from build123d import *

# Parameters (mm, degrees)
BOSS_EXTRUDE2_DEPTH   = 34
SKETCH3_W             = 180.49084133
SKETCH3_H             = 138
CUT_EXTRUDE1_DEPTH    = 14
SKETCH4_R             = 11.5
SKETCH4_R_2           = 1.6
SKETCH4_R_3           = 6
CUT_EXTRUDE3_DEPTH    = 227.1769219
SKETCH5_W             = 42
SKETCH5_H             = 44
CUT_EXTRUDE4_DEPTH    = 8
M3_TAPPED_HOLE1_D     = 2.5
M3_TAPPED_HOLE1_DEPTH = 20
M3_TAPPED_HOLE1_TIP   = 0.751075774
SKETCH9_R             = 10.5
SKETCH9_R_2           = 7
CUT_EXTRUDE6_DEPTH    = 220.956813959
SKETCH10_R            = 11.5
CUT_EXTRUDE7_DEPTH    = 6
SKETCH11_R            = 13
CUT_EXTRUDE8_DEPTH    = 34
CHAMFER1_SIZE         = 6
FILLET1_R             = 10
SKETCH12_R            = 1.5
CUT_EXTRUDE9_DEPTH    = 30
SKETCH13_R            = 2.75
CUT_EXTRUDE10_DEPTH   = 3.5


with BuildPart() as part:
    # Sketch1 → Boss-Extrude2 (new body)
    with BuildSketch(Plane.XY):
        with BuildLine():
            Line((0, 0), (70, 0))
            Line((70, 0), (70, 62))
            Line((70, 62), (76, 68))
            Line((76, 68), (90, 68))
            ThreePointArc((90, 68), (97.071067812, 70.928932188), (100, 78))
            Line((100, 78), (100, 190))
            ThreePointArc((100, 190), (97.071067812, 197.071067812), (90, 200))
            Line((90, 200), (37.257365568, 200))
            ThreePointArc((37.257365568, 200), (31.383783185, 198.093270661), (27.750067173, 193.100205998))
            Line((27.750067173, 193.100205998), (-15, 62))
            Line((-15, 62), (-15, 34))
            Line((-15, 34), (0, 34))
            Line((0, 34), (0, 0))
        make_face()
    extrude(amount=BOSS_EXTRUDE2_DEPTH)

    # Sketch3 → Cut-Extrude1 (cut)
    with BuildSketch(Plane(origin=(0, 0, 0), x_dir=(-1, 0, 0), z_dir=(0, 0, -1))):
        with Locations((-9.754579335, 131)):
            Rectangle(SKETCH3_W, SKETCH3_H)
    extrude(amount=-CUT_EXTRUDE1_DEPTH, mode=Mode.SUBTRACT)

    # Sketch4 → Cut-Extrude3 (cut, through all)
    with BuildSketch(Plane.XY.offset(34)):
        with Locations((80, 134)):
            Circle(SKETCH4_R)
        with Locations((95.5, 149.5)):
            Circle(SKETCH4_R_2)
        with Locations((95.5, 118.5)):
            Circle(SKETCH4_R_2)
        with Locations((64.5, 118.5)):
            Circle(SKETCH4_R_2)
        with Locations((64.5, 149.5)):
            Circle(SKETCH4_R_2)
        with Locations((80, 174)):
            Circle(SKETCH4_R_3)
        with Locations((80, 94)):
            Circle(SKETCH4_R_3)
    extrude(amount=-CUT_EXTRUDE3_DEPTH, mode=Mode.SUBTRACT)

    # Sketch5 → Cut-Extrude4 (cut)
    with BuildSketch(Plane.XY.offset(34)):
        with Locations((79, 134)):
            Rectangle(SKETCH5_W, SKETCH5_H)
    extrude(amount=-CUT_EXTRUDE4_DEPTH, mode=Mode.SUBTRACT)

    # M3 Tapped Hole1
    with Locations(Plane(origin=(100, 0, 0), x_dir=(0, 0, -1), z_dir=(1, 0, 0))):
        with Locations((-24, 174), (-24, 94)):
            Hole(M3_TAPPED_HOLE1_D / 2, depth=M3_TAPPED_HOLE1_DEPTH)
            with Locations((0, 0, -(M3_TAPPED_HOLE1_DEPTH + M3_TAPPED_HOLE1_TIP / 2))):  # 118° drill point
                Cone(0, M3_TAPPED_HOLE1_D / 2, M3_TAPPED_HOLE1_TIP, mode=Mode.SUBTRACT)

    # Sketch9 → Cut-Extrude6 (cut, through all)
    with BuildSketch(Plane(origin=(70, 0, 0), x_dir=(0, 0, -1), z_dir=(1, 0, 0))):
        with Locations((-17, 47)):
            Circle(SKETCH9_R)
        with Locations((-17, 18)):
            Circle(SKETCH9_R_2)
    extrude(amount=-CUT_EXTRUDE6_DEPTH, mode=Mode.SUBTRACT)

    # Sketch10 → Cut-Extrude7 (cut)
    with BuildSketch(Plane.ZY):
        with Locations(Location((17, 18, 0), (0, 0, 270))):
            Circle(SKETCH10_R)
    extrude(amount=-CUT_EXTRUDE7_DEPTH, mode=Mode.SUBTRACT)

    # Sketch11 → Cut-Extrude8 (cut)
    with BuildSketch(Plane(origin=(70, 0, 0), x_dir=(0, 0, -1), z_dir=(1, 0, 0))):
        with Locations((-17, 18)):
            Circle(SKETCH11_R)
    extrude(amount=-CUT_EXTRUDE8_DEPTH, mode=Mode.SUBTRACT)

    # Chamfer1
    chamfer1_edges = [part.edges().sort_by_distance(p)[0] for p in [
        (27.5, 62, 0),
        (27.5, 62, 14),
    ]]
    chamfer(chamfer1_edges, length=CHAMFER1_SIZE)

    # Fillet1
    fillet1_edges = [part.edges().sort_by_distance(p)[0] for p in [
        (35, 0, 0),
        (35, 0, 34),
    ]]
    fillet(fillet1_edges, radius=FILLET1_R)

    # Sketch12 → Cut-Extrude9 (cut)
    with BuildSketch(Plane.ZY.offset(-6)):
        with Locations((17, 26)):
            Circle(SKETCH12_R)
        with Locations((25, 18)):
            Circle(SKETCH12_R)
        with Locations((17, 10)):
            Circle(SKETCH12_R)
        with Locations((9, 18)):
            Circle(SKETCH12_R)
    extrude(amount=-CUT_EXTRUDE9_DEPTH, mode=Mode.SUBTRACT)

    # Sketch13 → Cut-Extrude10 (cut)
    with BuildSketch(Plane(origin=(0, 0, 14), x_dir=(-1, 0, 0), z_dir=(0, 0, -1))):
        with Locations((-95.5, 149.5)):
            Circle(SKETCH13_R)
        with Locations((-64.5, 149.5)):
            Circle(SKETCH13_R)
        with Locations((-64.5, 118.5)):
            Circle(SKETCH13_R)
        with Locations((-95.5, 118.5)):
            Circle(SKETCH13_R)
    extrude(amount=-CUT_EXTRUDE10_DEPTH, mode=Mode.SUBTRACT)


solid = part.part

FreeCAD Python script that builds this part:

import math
import FreeCAD as App
import Part
import Sketcher
Q = App.Units.Quantity


def edges_at(feature, points):
    """Names of the edges that pass closest to the given points."""
    edges = feature.Shape.Edges
    near = lambda p: min(range(len(edges)), key=lambda i: edges[i].distToShape(Part.Vertex(*p))[0])
    return sorted({f"Edge{near(p) + 1}" for p in points})

doc = App.newDocument("Part")
body = doc.addObject("PartDesign::Body", "Body")

# Sketch on XY plane
sketch1 = body.newObject("Sketcher::SketchObject", "Sketch")
sketch1.AttachmentSupport = (doc.getObject("XY_Plane"), [""])
sketch1.MapMode = "FlatFace"
sketch1.addGeometry([
    Part.LineSegment(App.Vector(0, 0, 0), App.Vector(70, 0, 0)),  # 0
    Part.LineSegment(App.Vector(70, 0, 0), App.Vector(70, 62, 0)),  # 1
    Part.LineSegment(App.Vector(70, 62, 0), App.Vector(76, 68, 0)),  # 2
    Part.LineSegment(App.Vector(76, 68, 0), App.Vector(90, 68, 0)),  # 3
    Part.ArcOfCircle(Part.Circle(App.Vector(90, 78, 0), App.Vector(0, 0, 1), 10), math.radians(-90), math.radians(0)),  # 4
    Part.LineSegment(App.Vector(100, 78, 0), App.Vector(100, 190, 0)),  # 5
    Part.ArcOfCircle(Part.Circle(App.Vector(90, 190, 0), App.Vector(0, 0, 1), 10), math.radians(0), math.radians(90)),  # 6
    Part.LineSegment(App.Vector(90, 200, 0), App.Vector(37, 200, 0)),  # 7
    Part.ArcOfCircle(Part.Circle(App.Vector(37, 190, 0), App.Vector(0, 0, 1), 10), math.radians(90), math.radians(162)),  # 8
    Part.LineSegment(App.Vector(28, 193, 0), App.Vector(-15, 62, 0)),  # 9
    Part.LineSegment(App.Vector(-15, 62, 0), App.Vector(-15, 34, 0)),  # 10
    Part.LineSegment(App.Vector(-15, 34, 0), App.Vector(0, 34, 0)),  # 11
    Part.LineSegment(App.Vector(0, 34, 0), App.Vector(0, 0, 0)),  # 12
], False)
sketch1.addConstraint([
    Sketcher.Constraint("Coincident", 0, 2, 1, 1),
    Sketcher.Constraint("Coincident", 1, 2, 2, 1),
    Sketcher.Constraint("Coincident", 2, 2, 3, 1),
    Sketcher.Constraint("Tangent", 3, 2, 4, 1),
    Sketcher.Constraint("Tangent", 4, 2, 5, 1),
    Sketcher.Constraint("Tangent", 5, 2, 6, 1),
    Sketcher.Constraint("Tangent", 6, 2, 7, 1),
    Sketcher.Constraint("Tangent", 7, 2, 8, 1),
    Sketcher.Constraint("Tangent", 8, 2, 9, 1),
    Sketcher.Constraint("Coincident", 9, 2, 10, 1),
    Sketcher.Constraint("Coincident", 10, 2, 11, 1),
    Sketcher.Constraint("Coincident", 11, 2, 12, 1),
    Sketcher.Constraint("Coincident", 12, 2, 0, 1),
    Sketcher.Constraint("Horizontal", 0),
    Sketcher.Constraint("Vertical", 1),
    Sketcher.Constraint("Horizontal", 3),
    Sketcher.Constraint("Vertical", 5),
    Sketcher.Constraint("Horizontal", 7),
    Sketcher.Constraint("Vertical", 10),
    Sketcher.Constraint("Horizontal", 11),
    Sketcher.Constraint("Vertical", 12),
    Sketcher.Constraint("Coincident", 12, 2, -1, 1),
    Sketcher.Constraint("Equal", 4, 6),
    Sketcher.Constraint("Equal", 6, 8),
    Sketcher.Constraint("Horizontal", 1, 2, 9, 2),
    Sketcher.Constraint("Radius", 4, 10.0),
    Sketcher.Constraint("DistanceX", 0, 1, 0, 2, 70.0),
    Sketcher.Constraint("DistanceX", 3, 1, 3, 2, 14.0),
    Sketcher.Constraint("DistanceX", 11, 1, 11, 2, 15.0),
    Sketcher.Constraint("DistanceY", 1, 1, 1, 2, 62.0),
    Sketcher.Constraint("DistanceY", 5, 1, 5, 2, 112.0),
    Sketcher.Constraint("DistanceY", 10, 2, 10, 1, 28.0),
    Sketcher.Constraint("Angle", 2, Q("45 deg")),
    Sketcher.Constraint("DistanceX", -1, 1, 4, 3, 90.0),
    Sketcher.Constraint("DistanceX", 8, 2, 8, 3, 9.507298),
])
pad1 = body.newObject("PartDesign::Pad", "Pad")
pad1.Profile = sketch1
pad1.Length = 34

# Sketch on XY plane
sketch2 = body.newObject("Sketcher::SketchObject", "Sketch001")
sketch2.AttachmentSupport = (doc.getObject("XY_Plane"), [""])
sketch2.MapMode = "FlatFace"
sketch2.addGeometry([
    Part.LineSegment(App.Vector(100, 200, 0), App.Vector(100, 62, 0)),
    Part.LineSegment(App.Vector(100, 62, 0), App.Vector(-80, 62, 0)),
    Part.LineSegment(App.Vector(-80, 62, 0), App.Vector(-80, 200, 0)),
    Part.LineSegment(App.Vector(-80, 200, 0), App.Vector(100, 200, 0)),
], False)
sketch2.addConstraint([
    Sketcher.Constraint("Coincident", 0, 2, 1, 1),
    Sketcher.Constraint("Coincident", 1, 2, 2, 1),
    Sketcher.Constraint("Coincident", 2, 2, 3, 1),
    Sketcher.Constraint("Coincident", 3, 2, 0, 1),
    Sketcher.Constraint("Vertical", 0),
    Sketcher.Constraint("Horizontal", 1),
    Sketcher.Constraint("Vertical", 2),
    Sketcher.Constraint("Horizontal", 3),
    Sketcher.Constraint("DistanceY", 0, 2, 0, 1, 138.0),
    Sketcher.Constraint("DistanceX", -1, 1, 0, 2, 100.0),
    Sketcher.Constraint("DistanceY", -1, 1, 0, 2, 62.0),
    Sketcher.Constraint("DistanceX", 1, 2, 1, 1, 180.490841),
])
pocket1 = body.newObject("PartDesign::Pocket", "Pocket")
pocket1.Profile = sketch2
pocket1.Length = 14
pocket1.Reversed = True

# Sketch on XY plane
sketch3 = body.newObject("Sketcher::SketchObject", "Sketch002")
sketch3.AttachmentSupport = (doc.getObject("XY_Plane"), [""])
sketch3.MapMode = "FlatFace"
sketch3.AttachmentOffset = App.Placement(App.Vector(0, 0, 34), App.Rotation())
sketch3.addGeometry([
    Part.Circle(App.Vector(80, 134, 0), App.Vector(0, 0, 1), 11.5),  # 0
    Part.Circle(App.Vector(95.5, 149.5, 0), App.Vector(0, 0, 1), 1.6),  # 1
    Part.Circle(App.Vector(95.5, 118.5, 0), App.Vector(0, 0, 1), 1.6),  # 2
    Part.Circle(App.Vector(64.5, 118.5, 0), App.Vector(0, 0, 1), 1.6),  # 3
    Part.Circle(App.Vector(64.5, 149.5, 0), App.Vector(0, 0, 1), 1.6),  # 4
    Part.Circle(App.Vector(80, 174, 0), App.Vector(0, 0, 1), 6),  # 5
    Part.Circle(App.Vector(80, 94, 0), App.Vector(0, 0, 1), 6),  # 6
], False)
sketch3.addConstraint([
    Sketcher.Constraint("Equal", 1, 2),
    Sketcher.Constraint("Equal", 2, 3),
    Sketcher.Constraint("Equal", 3, 4),
    Sketcher.Constraint("Equal", 5, 6),
    Sketcher.Constraint("Horizontal", 2, 3, 3, 3),
    Sketcher.Constraint("Horizontal", 1, 3, 4, 3),
    Sketcher.Constraint("Vertical", 1, 3, 2, 3),
    Sketcher.Constraint("Vertical", 3, 3, 4, 3),
    Sketcher.Constraint("Vertical", 0, 3, 5, 3),
    Sketcher.Constraint("Vertical", 5, 3, 6, 3),
    Sketcher.Constraint("Diameter", 0, 23.0),
    Sketcher.Constraint("Diameter", 5, 12.0),
    Sketcher.Constraint("Diameter", 1, 3.2),
    Sketcher.Constraint("DistanceX", -1, 1, 0, 3, 80.0),
    Sketcher.Constraint("DistanceY", -1, 1, 0, 3, 134.0),
    Sketcher.Constraint("DistanceY", -1, 1, 5, 3, 174.0),
    Sketcher.Constraint("DistanceY", -1, 1, 6, 3, 94.0),
    Sketcher.Constraint("DistanceY", 2, 3, 1, 3, 31.0),
    Sketcher.Constraint("DistanceX", 3, 3, 2, 3, 31.0),
    Sketcher.Constraint("DistanceX", -1, 1, 1, 3, 95.5),
    Sketcher.Constraint("DistanceY", -1, 1, 1, 3, 149.5),
])
pocket2 = body.newObject("PartDesign::Pocket", "Pocket001")
pocket2.Profile = sketch3
pocket2.Type = "ThroughAll"

# Sketch on XY plane
sketch4 = body.newObject("Sketcher::SketchObject", "Sketch003")
sketch4.AttachmentSupport = (doc.getObject("XY_Plane"), [""])
sketch4.MapMode = "FlatFace"
sketch4.AttachmentOffset = App.Placement(App.Vector(0, 0, 34), App.Rotation())
sketch4.addGeometry([
    Part.LineSegment(App.Vector(58, 156, 0), App.Vector(58, 112, 0)),
    Part.LineSegment(App.Vector(58, 112, 0), App.Vector(100, 112, 0)),
    Part.LineSegment(App.Vector(100, 112, 0), App.Vector(100, 156, 0)),
    Part.LineSegment(App.Vector(100, 156, 0), App.Vector(58, 156, 0)),
], False)
sketch4.addConstraint([
    Sketcher.Constraint("Coincident", 0, 2, 1, 1),
    Sketcher.Constraint("Coincident", 1, 2, 2, 1),
    Sketcher.Constraint("Coincident", 2, 2, 3, 1),
    Sketcher.Constraint("Coincident", 3, 2, 0, 1),
    Sketcher.Constraint("Vertical", 0),
    Sketcher.Constraint("Horizontal", 1),
    Sketcher.Constraint("Vertical", 2),
    Sketcher.Constraint("Horizontal", 3),
    Sketcher.Constraint("DistanceX", 1, 1, 1, 2, 42.0),
    Sketcher.Constraint("DistanceY", 0, 2, 0, 1, 44.0),
    Sketcher.Constraint("DistanceX", -1, 1, 0, 2, 58.0),
    Sketcher.Constraint("DistanceY", -1, 1, 0, 2, 112.0),
])
pocket3 = body.newObject("PartDesign::Pocket", "Pocket002")
pocket3.Profile = sketch4
pocket3.Length = 8

# Sketch on YZ plane
sketch5 = body.newObject("Sketcher::SketchObject", "Sketch004")
sketch5.AttachmentSupport = (doc.getObject("YZ_Plane"), [""])
sketch5.MapMode = "FlatFace"
sketch5.AttachmentOffset = App.Placement(App.Vector(0, 0, 100), App.Rotation())
sketch5.addGeometry([
    Part.Circle(App.Vector(174, 24, 0), App.Vector(0, 0, 1), 1.2),
    Part.Circle(App.Vector(94, 24, 0), App.Vector(0, 0, 1), 1.2),
], False)
sketch5.addConstraint([
    Sketcher.Constraint("Equal", 0, 1),
    Sketcher.Constraint("Horizontal", 0, 3, 1, 3),
    Sketcher.Constraint("Diameter", 0, 2.5),
    Sketcher.Constraint("DistanceX", -1, 1, 0, 3, 174.0),
    Sketcher.Constraint("DistanceY", -1, 1, 0, 3, 24.0),
    Sketcher.Constraint("DistanceX", -1, 1, 1, 3, 94.0),
])
doc.recompute()
hole = body.newObject("PartDesign::Hole", "Hole")
hole.Profile = sketch5
hole.ThreadType = "None"
hole.Diameter = 2.5
hole.DepthType = "Dimension"
hole.Depth = 20
hole.DrillPoint = "Angled"
hole.DrillPointAngle = 118

# Sketch on YZ plane
sketch6 = body.newObject("Sketcher::SketchObject", "Sketch005")
sketch6.AttachmentSupport = (doc.getObject("YZ_Plane"), [""])
sketch6.MapMode = "FlatFace"
sketch6.AttachmentOffset = App.Placement(App.Vector(0, 0, 70), App.Rotation())
sketch6.addGeometry([
    Part.Circle(App.Vector(47, 17, 0), App.Vector(0, 0, 1), 10),
    Part.Circle(App.Vector(18, 17, 0), App.Vector(0, 0, 1), 7),
], False)
sketch6.addConstraint([
    Sketcher.Constraint("Horizontal", 0, 3, 1, 3),
    Sketcher.Constraint("Diameter", 0, 21.0),
    Sketcher.Constraint("Diameter", 1, 14.0),
    Sketcher.Constraint("DistanceX", -1, 1, 0, 3, 47.0),
    Sketcher.Constraint("DistanceY", -1, 1, 0, 3, 17.0),
    Sketcher.Constraint("DistanceX", -1, 1, 1, 3, 18.0),
])
pocket4 = body.newObject("PartDesign::Pocket", "Pocket003")
pocket4.Profile = sketch6
pocket4.Type = "ThroughAll"

# Sketch on YZ plane
sketch7 = body.newObject("Sketcher::SketchObject", "Sketch006")
sketch7.AttachmentSupport = (doc.getObject("YZ_Plane"), [""])
sketch7.MapMode = "FlatFace"
sketch7.addGeometry(Part.Circle(App.Vector(18, 17, 0), App.Vector(0, 0, 1), 12), False)
sketch7.addConstraint([
    Sketcher.Constraint("Diameter", 0, 23.0),
    Sketcher.Constraint("DistanceX", -1, 1, 0, 3, 18.0),
    Sketcher.Constraint("DistanceY", -1, 1, 0, 3, 17.0),
])
pocket5 = body.newObject("PartDesign::Pocket", "Pocket004")
pocket5.Profile = sketch7
pocket5.Length = 6
pocket5.Reversed = True

# Sketch on YZ plane
sketch8 = body.newObject("Sketcher::SketchObject", "Sketch007")
sketch8.AttachmentSupport = (doc.getObject("YZ_Plane"), [""])
sketch8.MapMode = "FlatFace"
sketch8.AttachmentOffset = App.Placement(App.Vector(0, 0, 70), App.Rotation())
sketch8.addGeometry(Part.Circle(App.Vector(18, 17, 0), App.Vector(0, 0, 1), 13), False)
sketch8.addConstraint([
    Sketcher.Constraint("Diameter", 0, 26.0),
    Sketcher.Constraint("DistanceX", -1, 1, 0, 3, 18.0),
    Sketcher.Constraint("DistanceY", -1, 1, 0, 3, 17.0),
])
pocket6 = body.newObject("PartDesign::Pocket", "Pocket005")
pocket6.Profile = sketch8
pocket6.Length = 34
doc.recompute()

chamfer = body.newObject("PartDesign::Chamfer", "Chamfer")
chamfer.Base = (pocket6, edges_at(pocket6, [(27.5, 62, 0), (27.5, 62, 14)]))
chamfer.Size = 6
doc.recompute()

fillet = body.newObject("PartDesign::Fillet", "Fillet")
fillet.Base = (chamfer, edges_at(chamfer, [(35, 0, 0), (35, 0, 34)]))
fillet.Radius = 10

# Sketch on YZ plane
sketch9 = body.newObject("Sketcher::SketchObject", "Sketch008")
sketch9.AttachmentSupport = (doc.getObject("YZ_Plane"), [""])
sketch9.MapMode = "FlatFace"
sketch9.AttachmentOffset = App.Placement(App.Vector(0, 0, 6), App.Rotation())
sketch9.addGeometry([
    Part.Circle(App.Vector(26, 17, 0), App.Vector(0, 0, 1), 1.5),
    Part.Circle(App.Vector(18, 25, 0), App.Vector(0, 0, 1), 1.5),
    Part.Circle(App.Vector(10, 17, 0), App.Vector(0, 0, 1), 1.5),
    Part.Circle(App.Vector(18, 9, 0), App.Vector(0, 0, 1), 1.5),
], False)
sketch9.addConstraint([
    Sketcher.Constraint("Equal", 0, 1),
    Sketcher.Constraint("Equal", 1, 2),
    Sketcher.Constraint("Equal", 2, 3),
    Sketcher.Constraint("Horizontal", 0, 3, 2, 3),
    Sketcher.Constraint("Vertical", 1, 3, 3, 3),
    Sketcher.Constraint("Diameter", 0, 3.0),
    Sketcher.Constraint("DistanceX", -1, 1, 0, 3, 26.0),
    Sketcher.Constraint("DistanceY", -1, 1, 0, 3, 17.0),
    Sketcher.Constraint("DistanceX", -1, 1, 1, 3, 18.0),
    Sketcher.Constraint("DistanceY", -1, 1, 1, 3, 25.0),
    Sketcher.Constraint("DistanceX", -1, 1, 2, 3, 10.0),
    Sketcher.Constraint("DistanceY", -1, 1, 3, 3, 9.0),
])
pocket7 = body.newObject("PartDesign::Pocket", "Pocket006")
pocket7.Profile = sketch9
pocket7.Length = 30
pocket7.Reversed = True

# Sketch on XY plane
sketch10 = body.newObject("Sketcher::SketchObject", "Sketch009")
sketch10.AttachmentSupport = (doc.getObject("XY_Plane"), [""])
sketch10.MapMode = "FlatFace"
sketch10.AttachmentOffset = App.Placement(App.Vector(0, 0, 14), App.Rotation())
sketch10.addGeometry([
    Part.Circle(App.Vector(95.5, 149.5, 0), App.Vector(0, 0, 1), 2.8),
    Part.Circle(App.Vector(64.5, 149.5, 0), App.Vector(0, 0, 1), 2.8),
    Part.Circle(App.Vector(64.5, 118.5, 0), App.Vector(0, 0, 1), 2.8),
    Part.Circle(App.Vector(95.5, 118.5, 0), App.Vector(0, 0, 1), 2.8),
], False)
sketch10.addConstraint([
    Sketcher.Constraint("Equal", 0, 1),
    Sketcher.Constraint("Equal", 1, 2),
    Sketcher.Constraint("Equal", 2, 3),
    Sketcher.Constraint("Horizontal", 0, 3, 1, 3),
    Sketcher.Constraint("Horizontal", 2, 3, 3, 3),
    Sketcher.Constraint("Vertical", 1, 3, 2, 3),
    Sketcher.Constraint("Vertical", 0, 3, 3, 3),
    Sketcher.Constraint("Diameter", 0, 5.5),
    Sketcher.Constraint("DistanceX", 1, 3, 0, 3, 31.0),
    Sketcher.Constraint("DistanceY", 2, 3, 1, 3, 31.0),
    Sketcher.Constraint("DistanceX", -1, 1, 0, 3, 95.5),
    Sketcher.Constraint("DistanceY", -1, 1, 0, 3, 149.5),
])
pocket8 = body.newObject("PartDesign::Pocket", "Pocket007")
pocket8.Profile = sketch10
pocket8.Length = 3.5
pocket8.Reversed = True

doc.recompute()
